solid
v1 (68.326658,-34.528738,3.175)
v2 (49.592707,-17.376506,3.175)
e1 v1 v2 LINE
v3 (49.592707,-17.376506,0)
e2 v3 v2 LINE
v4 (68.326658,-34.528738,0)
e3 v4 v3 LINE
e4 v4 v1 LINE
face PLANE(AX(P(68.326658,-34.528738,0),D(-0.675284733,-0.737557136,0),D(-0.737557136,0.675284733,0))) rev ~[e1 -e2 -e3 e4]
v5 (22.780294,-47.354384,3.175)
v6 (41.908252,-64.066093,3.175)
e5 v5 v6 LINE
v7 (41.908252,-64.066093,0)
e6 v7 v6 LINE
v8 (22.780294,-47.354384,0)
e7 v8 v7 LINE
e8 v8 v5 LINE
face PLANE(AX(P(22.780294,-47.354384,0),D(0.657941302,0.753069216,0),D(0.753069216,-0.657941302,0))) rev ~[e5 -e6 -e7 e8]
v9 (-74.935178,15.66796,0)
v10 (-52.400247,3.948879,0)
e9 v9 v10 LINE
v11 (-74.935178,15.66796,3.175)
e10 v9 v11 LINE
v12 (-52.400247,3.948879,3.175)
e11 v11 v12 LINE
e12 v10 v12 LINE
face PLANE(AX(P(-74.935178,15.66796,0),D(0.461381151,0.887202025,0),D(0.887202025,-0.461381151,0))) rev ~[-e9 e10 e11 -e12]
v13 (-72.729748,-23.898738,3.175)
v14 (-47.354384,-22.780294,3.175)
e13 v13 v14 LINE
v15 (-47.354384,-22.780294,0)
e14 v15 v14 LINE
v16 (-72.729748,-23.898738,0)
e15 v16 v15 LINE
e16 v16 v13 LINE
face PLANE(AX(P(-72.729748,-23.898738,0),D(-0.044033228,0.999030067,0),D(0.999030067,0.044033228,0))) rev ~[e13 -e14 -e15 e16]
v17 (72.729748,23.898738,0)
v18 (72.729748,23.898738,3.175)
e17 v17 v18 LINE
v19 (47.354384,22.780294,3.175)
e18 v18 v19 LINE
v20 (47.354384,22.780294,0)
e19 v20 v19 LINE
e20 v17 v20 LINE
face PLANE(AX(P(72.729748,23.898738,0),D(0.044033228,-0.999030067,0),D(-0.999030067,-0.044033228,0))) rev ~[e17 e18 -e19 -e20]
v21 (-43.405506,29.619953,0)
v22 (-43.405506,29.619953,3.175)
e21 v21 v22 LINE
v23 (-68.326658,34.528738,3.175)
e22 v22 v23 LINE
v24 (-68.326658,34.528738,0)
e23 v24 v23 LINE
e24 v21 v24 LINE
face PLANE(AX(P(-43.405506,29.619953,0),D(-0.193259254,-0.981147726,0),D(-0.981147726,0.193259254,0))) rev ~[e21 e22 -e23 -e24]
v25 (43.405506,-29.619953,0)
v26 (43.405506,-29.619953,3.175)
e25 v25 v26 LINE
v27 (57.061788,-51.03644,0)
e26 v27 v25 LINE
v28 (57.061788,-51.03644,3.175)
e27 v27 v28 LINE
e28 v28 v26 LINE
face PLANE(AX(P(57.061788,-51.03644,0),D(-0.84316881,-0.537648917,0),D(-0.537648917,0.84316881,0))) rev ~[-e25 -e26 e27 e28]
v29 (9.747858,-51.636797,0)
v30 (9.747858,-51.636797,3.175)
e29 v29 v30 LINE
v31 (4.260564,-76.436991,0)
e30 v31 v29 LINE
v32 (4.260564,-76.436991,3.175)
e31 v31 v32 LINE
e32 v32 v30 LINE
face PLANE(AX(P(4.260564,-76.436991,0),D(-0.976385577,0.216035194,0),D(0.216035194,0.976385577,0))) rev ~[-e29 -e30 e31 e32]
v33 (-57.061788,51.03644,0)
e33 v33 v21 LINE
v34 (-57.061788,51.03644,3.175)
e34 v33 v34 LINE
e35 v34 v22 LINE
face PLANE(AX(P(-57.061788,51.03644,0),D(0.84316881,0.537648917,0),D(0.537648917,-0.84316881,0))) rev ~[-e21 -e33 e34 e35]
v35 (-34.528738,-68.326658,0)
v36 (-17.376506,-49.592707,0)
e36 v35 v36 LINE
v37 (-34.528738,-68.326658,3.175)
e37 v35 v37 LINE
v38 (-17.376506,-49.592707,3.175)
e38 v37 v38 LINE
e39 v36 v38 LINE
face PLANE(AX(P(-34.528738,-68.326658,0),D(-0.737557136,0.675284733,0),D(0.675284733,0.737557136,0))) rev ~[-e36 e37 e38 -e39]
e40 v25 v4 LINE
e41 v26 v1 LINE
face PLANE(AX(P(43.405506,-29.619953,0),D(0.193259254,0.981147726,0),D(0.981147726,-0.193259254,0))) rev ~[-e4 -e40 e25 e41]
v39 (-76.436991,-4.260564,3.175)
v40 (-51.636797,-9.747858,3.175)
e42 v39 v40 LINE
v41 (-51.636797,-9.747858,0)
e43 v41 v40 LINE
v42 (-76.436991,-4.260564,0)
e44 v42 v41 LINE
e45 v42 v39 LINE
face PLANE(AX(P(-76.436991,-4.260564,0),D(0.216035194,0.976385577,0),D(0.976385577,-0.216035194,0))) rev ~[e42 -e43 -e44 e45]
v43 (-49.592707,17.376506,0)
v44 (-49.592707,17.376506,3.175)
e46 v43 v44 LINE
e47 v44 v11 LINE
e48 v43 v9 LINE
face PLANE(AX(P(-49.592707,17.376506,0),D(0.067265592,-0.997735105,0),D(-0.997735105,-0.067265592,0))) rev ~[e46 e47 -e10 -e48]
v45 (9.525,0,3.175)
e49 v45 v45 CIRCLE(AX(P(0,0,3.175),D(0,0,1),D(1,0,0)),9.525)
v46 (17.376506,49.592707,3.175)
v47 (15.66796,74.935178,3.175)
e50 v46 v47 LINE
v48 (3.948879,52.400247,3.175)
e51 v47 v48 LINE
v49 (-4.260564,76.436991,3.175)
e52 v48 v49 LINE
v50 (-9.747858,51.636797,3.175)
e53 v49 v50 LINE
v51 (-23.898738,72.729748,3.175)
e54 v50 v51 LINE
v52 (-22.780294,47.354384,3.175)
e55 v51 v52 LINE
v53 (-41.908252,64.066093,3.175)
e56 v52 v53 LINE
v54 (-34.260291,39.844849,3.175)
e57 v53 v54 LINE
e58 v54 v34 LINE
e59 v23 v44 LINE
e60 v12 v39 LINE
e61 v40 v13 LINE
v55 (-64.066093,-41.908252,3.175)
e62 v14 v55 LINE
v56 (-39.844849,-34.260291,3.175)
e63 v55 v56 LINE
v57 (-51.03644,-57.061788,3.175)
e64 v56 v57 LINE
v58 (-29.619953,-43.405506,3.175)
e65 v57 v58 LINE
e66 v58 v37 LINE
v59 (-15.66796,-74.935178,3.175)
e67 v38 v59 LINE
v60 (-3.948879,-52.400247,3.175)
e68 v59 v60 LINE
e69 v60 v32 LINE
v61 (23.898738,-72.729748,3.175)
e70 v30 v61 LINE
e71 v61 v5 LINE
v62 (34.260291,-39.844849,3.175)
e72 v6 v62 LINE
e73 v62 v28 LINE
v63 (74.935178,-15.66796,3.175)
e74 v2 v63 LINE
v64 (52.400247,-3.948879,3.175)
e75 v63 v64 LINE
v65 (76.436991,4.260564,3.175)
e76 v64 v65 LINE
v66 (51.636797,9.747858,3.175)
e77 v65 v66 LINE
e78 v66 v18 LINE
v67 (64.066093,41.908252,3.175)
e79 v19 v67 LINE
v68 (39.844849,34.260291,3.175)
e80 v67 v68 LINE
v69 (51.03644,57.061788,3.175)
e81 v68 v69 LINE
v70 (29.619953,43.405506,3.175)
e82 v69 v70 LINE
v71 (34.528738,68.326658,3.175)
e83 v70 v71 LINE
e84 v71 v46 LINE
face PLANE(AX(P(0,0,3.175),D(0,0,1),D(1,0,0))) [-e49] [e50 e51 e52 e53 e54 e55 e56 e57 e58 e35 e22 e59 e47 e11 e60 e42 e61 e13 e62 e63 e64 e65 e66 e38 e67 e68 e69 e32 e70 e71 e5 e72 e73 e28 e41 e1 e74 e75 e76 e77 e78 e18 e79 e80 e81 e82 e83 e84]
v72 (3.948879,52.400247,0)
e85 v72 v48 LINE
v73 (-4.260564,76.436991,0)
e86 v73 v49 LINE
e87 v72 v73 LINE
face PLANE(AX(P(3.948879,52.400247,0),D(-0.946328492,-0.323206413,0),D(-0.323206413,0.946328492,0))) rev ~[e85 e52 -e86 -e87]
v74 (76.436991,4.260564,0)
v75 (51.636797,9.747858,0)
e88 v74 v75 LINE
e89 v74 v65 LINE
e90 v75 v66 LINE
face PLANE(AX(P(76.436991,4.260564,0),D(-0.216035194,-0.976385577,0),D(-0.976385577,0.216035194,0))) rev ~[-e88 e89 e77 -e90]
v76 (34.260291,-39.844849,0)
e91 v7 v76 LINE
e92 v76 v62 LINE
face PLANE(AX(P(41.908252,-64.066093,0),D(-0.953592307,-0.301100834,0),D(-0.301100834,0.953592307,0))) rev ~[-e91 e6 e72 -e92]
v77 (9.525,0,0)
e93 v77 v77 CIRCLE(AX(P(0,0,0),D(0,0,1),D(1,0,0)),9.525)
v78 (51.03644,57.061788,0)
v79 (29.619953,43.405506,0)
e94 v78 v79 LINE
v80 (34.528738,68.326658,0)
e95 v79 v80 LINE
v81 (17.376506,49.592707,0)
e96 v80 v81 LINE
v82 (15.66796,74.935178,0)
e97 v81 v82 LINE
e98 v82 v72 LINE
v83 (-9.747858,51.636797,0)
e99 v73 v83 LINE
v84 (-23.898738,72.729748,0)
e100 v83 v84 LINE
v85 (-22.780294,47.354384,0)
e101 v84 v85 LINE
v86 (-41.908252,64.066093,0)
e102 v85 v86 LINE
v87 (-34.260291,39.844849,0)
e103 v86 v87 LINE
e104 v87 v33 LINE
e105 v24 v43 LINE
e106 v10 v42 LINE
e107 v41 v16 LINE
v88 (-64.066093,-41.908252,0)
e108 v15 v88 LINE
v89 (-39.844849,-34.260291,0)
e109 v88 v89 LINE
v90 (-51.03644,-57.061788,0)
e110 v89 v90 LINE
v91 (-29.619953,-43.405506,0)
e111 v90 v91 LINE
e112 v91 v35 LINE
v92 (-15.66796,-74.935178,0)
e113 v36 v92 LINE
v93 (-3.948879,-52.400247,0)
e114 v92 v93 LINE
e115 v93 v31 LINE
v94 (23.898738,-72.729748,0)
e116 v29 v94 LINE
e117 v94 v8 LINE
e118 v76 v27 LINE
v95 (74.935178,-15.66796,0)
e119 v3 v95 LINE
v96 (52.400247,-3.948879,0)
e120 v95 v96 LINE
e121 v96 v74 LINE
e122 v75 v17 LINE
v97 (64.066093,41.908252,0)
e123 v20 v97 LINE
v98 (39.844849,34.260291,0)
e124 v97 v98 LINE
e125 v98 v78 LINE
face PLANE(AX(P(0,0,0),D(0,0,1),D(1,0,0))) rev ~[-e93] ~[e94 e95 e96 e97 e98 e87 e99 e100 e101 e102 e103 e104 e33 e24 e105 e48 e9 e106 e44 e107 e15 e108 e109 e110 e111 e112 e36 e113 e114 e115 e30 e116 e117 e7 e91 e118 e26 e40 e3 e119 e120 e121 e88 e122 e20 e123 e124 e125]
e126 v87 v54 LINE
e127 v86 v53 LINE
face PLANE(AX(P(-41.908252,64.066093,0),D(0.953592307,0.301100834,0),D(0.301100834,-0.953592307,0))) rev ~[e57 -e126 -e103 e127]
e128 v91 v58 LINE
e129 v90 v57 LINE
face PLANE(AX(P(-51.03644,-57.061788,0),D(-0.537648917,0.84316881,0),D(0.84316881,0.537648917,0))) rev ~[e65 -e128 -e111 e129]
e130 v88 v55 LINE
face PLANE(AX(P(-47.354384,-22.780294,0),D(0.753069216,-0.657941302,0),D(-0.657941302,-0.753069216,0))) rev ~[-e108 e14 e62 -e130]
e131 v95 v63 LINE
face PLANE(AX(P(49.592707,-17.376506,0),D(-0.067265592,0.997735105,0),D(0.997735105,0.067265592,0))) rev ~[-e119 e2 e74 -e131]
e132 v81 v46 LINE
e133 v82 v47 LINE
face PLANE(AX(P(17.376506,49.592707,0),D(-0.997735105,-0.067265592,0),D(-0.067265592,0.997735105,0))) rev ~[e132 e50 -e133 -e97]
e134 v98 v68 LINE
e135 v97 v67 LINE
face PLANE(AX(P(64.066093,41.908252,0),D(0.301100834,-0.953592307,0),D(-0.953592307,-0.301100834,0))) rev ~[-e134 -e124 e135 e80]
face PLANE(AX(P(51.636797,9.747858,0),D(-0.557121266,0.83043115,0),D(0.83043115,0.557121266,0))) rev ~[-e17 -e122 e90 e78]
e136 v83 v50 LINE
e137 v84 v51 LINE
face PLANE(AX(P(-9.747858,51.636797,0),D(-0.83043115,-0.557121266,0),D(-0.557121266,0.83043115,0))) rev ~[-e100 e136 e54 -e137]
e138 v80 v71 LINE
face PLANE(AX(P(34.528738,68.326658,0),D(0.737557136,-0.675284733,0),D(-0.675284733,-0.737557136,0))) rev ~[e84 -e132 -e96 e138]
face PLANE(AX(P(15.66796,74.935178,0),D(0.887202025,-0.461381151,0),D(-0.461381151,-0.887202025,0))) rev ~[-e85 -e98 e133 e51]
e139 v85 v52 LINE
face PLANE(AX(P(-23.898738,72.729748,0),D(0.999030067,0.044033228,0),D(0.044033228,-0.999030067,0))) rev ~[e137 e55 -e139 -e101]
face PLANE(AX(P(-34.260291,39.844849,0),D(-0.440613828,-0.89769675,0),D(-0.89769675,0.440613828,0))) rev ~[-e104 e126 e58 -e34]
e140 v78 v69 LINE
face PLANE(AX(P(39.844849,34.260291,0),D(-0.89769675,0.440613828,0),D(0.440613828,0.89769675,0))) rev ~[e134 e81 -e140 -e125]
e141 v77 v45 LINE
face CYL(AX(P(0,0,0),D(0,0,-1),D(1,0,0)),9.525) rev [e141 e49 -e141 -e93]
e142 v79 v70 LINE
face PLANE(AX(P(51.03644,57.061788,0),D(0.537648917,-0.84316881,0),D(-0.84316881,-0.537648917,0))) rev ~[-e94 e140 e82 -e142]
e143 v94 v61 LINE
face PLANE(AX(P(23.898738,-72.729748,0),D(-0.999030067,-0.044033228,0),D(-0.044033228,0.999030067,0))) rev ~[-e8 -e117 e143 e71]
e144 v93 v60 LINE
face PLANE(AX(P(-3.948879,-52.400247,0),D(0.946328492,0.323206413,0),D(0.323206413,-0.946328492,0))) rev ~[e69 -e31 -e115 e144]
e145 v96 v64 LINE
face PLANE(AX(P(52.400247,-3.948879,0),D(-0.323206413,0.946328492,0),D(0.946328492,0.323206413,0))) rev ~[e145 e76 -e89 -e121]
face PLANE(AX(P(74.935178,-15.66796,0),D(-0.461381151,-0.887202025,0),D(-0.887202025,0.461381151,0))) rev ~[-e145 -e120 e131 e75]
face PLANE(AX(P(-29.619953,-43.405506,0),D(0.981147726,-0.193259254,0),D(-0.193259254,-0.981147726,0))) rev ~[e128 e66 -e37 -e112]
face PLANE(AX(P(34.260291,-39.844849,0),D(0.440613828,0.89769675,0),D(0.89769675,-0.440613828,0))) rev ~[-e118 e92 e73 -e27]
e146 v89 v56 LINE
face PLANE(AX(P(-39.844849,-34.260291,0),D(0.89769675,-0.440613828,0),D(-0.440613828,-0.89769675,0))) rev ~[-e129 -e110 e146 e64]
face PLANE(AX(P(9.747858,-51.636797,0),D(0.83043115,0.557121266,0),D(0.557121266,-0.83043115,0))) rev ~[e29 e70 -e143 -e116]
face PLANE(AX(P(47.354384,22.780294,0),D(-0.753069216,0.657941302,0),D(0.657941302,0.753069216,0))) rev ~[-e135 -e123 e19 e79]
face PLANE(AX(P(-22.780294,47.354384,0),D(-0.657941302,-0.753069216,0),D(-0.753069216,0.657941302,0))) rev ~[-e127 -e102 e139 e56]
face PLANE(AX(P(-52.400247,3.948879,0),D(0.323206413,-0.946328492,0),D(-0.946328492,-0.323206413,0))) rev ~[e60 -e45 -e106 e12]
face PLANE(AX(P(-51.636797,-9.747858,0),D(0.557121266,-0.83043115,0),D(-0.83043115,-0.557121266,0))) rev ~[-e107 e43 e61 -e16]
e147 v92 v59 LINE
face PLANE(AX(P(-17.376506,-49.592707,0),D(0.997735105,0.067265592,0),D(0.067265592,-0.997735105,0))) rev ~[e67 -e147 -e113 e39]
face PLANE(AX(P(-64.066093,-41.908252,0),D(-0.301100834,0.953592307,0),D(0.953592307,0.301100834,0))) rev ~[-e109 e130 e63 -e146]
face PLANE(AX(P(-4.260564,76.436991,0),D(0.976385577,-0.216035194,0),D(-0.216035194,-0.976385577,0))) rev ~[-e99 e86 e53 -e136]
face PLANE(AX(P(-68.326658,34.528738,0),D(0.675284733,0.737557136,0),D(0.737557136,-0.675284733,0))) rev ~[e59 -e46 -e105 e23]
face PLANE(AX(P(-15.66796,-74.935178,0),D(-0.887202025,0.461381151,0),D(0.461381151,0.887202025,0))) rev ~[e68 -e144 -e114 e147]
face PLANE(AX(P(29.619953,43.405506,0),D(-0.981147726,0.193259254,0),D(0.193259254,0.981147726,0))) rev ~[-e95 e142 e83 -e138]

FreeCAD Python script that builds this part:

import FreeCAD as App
import Part
import Sketcher

V = App.Vector
Q = App.Units.Quantity


def add_polygon(sketch, points):
    """Adds a closed chain of lines whose ends are joined by coincident constraints."""
    first, n = sketch.GeometryCount, len(points)
    for a, b in zip(points, points[1:] + points[:1]):
        sketch.addGeometry(Part.LineSegment(App.Vector(*a, 0), App.Vector(*b, 0)), False)
    for i in range(n):
        sketch.addConstraint(Sketcher.Constraint("Coincident", first + i, 2, first + (i + 1) % n, 1))

doc = App.newDocument("Part")
body = doc.addObject("PartDesign::Body", "Body")

# Sketch on XY plane
sketch1 = body.newObject("Sketcher::SketchObject", "Sketch")
sketch1.AttachmentSupport = (doc.getObject("XY_Plane"), [""])
sketch1.MapMode = "FlatFace"
add_polygon(sketch1, [(35, 68), (17, 50), (16, 75), (4, 52), (-4, 76), (-10, 52), (-24, 73), (-23, 47), (-42, 64), (-34, 40), (-57, 51), (-43, 30), (-68, 35), (-50, 17), (-75, 16), (-52, 4), (-76, -4), (-52, -10), (-73, -24), (-47, -23), (-64, -42), (-40, -34), (-51, -57), (-30, -43), (-35, -68), (-17, -50), (-16, -75), (-4, -52), (4, -76), (10, -52), (24, -73), (23, -47), (42, -64), (34, -40), (57, -51), (43, -30), (68, -35), (50, -17), (75, -16), (52, -4), (76, 4), (52, 10), (73, 24), (47, 23), (64, 42), (40, 34), (51, 57), (30, 43)])  # lines 0-47
sketch1.addGeometry(Part.Circle(V(0, 0, 0), V(0, 0, 1), 10), False)  # 48
sketch1.addConstraint([
    Sketcher.Constraint("Coincident", 48, 3, -1, 1),
    Sketcher.Constraint("Symmetric", 0, 2, 24, 2, -1, 1),
    Sketcher.Constraint("Symmetric", 1, 2, 25, 2, -1, 1),
    Sketcher.Constraint("Symmetric", 2, 2, 26, 2, -1, 1),
    Sketcher.Constraint("Symmetric", 3, 2, 27, 2, -1, 1),
    Sketcher.Constraint("Symmetric", 4, 2, 28, 2, -1, 1),
    Sketcher.Constraint("Symmetric", 5, 2, 29, 2, -1, 1),
    Sketcher.Constraint("Symmetric", 6, 2, 30, 2, -1, 1),
    Sketcher.Constraint("Symmetric", 7, 2, 31, 2, -1, 1),
    Sketcher.Constraint("Symmetric", 8, 2, 32, 2, -1, 1),
    Sketcher.Constraint("Symmetric", 9, 2, 33, 2, -1, 1),
    Sketcher.Constraint("Symmetric", 10, 2, 34, 2, -1, 1),
    Sketcher.Constraint("Symmetric", 11, 2, 35, 2, -1, 1),
    Sketcher.Constraint("Symmetric", 12, 2, 36, 2, -1, 1),
    Sketcher.Constraint("Symmetric", 13, 2, 37, 2, -1, 1),
    Sketcher.Constraint("Symmetric", 14, 2, 38, 2, -1, 1),
    Sketcher.Constraint("Symmetric", 15, 2, 39, 2, -1, 1),
    Sketcher.Constraint("Symmetric", 16, 2, 40, 2, -1, 1),
    Sketcher.Constraint("Symmetric", 17, 2, 41, 2, -1, 1),
    Sketcher.Constraint("Symmetric", 18, 2, 42, 2, -1, 1),
    Sketcher.Constraint("Symmetric", 19, 2, 43, 2, -1, 1),
    Sketcher.Constraint("Symmetric", 20, 2, 44, 2, -1, 1),
    Sketcher.Constraint("Symmetric", 21, 2, 45, 2, -1, 1),
    Sketcher.Constraint("Symmetric", 22, 2, 46, 2, -1, 1),
    Sketcher.Constraint("Symmetric", 23, 2, 47, 2, -1, 1),
    Sketcher.Constraint("Perpendicular", 0, 12),
    Sketcher.Constraint("Perpendicular", 1, 13),
    Sketcher.Constraint("Perpendicular", 2, 14),
    Sketcher.Constraint("Perpendicular", 3, 15),
    Sketcher.Constraint("Perpendicular", 4, 16),
    Sketcher.Constraint("Perpendicular", 5, 17),
    Sketcher.Constraint("Perpendicular", 6, 18),
    Sketcher.Constraint("Perpendicular", 7, 19),
    Sketcher.Constraint("Perpendicular", 8, 20),
    Sketcher.Constraint("Perpendicular", 9, 21),
    Sketcher.Constraint("Perpendicular", 10, 22),
    Sketcher.Constraint("Perpendicular", 11, 23),
    Sketcher.Constraint("Equal", 0, 1),
    Sketcher.Constraint("Equal", 1, 2),
    Sketcher.Constraint("Equal", 2, 3),
    Sketcher.Constraint("Equal", 3, 4),
    Sketcher.Constraint("Equal", 4, 5),
    Sketcher.Constraint("Equal", 5, 6),
    Sketcher.Constraint("Equal", 6, 7),
    Sketcher.Constraint("Equal", 7, 8),
    Sketcher.Constraint("Equal", 8, 9),
    Sketcher.Constraint("Equal", 9, 10),
    Sketcher.Constraint("Equal", 10, 11),
    Sketcher.Constraint("Equal", 11, 12),
    Sketcher.Constraint("Equal", 12, 13),
    Sketcher.Constraint("Equal", 13, 14),
    Sketcher.Constraint("Equal", 14, 15),
    Sketcher.Constraint("Equal", 15, 16),
    Sketcher.Constraint("Equal", 16, 17),
    Sketcher.Constraint("Equal", 17, 18),
    Sketcher.Constraint("Equal", 18, 19),
    Sketcher.Constraint("Equal", 19, 20),
    Sketcher.Constraint("Equal", 20, 21),
    Sketcher.Constraint("Equal", 21, 22),
    Sketcher.Constraint("Equal", 22, 23),
    Sketcher.Constraint("Diameter", 48, Q("0.75 in")),
    Sketcher.Constraint("Distance", 0, Q("1 in")),
    Sketcher.Constraint("DistanceY", 2, 2, 5, 2, 20.329501),
    Sketcher.Constraint("DistanceX", 5, 2, 1, 2, 39.566698),
    Sketcher.Constraint("DistanceX", 6, 2, 0, 2, 40.1568),
    Sketcher.Constraint("DistanceY", 7, 2, 3, 2, 12.370898),
    Sketcher.Constraint("DistanceY", 8, 2, 5, 2, 32.884899),
    Sketcher.Constraint("DistanceX", 12, 2, 10, 2, 6.187201),
    Sketcher.Constraint("DistanceX", -1, 1, 1, 2, 15.66796),
    Sketcher.Constraint("DistanceX", -1, 1, 2, 2, 3.948879),
    Sketcher.Constraint("DistanceY", -1, 1, 3, 2, 76.436991),
    Sketcher.Constraint("DistanceX", 4, 2, -1, 1, 9.747858),
    Sketcher.Constraint("DistanceX", 7, 2, -1, 1, 41.908252),
    Sketcher.Constraint("DistanceY", -1, 1, 9, 2, 51.03644),
])
pad1 = body.newObject("PartDesign::Pad", "Pad")
pad1.Profile = sketch1
pad1.Length = Q("0.125 in")

doc.recompute()
